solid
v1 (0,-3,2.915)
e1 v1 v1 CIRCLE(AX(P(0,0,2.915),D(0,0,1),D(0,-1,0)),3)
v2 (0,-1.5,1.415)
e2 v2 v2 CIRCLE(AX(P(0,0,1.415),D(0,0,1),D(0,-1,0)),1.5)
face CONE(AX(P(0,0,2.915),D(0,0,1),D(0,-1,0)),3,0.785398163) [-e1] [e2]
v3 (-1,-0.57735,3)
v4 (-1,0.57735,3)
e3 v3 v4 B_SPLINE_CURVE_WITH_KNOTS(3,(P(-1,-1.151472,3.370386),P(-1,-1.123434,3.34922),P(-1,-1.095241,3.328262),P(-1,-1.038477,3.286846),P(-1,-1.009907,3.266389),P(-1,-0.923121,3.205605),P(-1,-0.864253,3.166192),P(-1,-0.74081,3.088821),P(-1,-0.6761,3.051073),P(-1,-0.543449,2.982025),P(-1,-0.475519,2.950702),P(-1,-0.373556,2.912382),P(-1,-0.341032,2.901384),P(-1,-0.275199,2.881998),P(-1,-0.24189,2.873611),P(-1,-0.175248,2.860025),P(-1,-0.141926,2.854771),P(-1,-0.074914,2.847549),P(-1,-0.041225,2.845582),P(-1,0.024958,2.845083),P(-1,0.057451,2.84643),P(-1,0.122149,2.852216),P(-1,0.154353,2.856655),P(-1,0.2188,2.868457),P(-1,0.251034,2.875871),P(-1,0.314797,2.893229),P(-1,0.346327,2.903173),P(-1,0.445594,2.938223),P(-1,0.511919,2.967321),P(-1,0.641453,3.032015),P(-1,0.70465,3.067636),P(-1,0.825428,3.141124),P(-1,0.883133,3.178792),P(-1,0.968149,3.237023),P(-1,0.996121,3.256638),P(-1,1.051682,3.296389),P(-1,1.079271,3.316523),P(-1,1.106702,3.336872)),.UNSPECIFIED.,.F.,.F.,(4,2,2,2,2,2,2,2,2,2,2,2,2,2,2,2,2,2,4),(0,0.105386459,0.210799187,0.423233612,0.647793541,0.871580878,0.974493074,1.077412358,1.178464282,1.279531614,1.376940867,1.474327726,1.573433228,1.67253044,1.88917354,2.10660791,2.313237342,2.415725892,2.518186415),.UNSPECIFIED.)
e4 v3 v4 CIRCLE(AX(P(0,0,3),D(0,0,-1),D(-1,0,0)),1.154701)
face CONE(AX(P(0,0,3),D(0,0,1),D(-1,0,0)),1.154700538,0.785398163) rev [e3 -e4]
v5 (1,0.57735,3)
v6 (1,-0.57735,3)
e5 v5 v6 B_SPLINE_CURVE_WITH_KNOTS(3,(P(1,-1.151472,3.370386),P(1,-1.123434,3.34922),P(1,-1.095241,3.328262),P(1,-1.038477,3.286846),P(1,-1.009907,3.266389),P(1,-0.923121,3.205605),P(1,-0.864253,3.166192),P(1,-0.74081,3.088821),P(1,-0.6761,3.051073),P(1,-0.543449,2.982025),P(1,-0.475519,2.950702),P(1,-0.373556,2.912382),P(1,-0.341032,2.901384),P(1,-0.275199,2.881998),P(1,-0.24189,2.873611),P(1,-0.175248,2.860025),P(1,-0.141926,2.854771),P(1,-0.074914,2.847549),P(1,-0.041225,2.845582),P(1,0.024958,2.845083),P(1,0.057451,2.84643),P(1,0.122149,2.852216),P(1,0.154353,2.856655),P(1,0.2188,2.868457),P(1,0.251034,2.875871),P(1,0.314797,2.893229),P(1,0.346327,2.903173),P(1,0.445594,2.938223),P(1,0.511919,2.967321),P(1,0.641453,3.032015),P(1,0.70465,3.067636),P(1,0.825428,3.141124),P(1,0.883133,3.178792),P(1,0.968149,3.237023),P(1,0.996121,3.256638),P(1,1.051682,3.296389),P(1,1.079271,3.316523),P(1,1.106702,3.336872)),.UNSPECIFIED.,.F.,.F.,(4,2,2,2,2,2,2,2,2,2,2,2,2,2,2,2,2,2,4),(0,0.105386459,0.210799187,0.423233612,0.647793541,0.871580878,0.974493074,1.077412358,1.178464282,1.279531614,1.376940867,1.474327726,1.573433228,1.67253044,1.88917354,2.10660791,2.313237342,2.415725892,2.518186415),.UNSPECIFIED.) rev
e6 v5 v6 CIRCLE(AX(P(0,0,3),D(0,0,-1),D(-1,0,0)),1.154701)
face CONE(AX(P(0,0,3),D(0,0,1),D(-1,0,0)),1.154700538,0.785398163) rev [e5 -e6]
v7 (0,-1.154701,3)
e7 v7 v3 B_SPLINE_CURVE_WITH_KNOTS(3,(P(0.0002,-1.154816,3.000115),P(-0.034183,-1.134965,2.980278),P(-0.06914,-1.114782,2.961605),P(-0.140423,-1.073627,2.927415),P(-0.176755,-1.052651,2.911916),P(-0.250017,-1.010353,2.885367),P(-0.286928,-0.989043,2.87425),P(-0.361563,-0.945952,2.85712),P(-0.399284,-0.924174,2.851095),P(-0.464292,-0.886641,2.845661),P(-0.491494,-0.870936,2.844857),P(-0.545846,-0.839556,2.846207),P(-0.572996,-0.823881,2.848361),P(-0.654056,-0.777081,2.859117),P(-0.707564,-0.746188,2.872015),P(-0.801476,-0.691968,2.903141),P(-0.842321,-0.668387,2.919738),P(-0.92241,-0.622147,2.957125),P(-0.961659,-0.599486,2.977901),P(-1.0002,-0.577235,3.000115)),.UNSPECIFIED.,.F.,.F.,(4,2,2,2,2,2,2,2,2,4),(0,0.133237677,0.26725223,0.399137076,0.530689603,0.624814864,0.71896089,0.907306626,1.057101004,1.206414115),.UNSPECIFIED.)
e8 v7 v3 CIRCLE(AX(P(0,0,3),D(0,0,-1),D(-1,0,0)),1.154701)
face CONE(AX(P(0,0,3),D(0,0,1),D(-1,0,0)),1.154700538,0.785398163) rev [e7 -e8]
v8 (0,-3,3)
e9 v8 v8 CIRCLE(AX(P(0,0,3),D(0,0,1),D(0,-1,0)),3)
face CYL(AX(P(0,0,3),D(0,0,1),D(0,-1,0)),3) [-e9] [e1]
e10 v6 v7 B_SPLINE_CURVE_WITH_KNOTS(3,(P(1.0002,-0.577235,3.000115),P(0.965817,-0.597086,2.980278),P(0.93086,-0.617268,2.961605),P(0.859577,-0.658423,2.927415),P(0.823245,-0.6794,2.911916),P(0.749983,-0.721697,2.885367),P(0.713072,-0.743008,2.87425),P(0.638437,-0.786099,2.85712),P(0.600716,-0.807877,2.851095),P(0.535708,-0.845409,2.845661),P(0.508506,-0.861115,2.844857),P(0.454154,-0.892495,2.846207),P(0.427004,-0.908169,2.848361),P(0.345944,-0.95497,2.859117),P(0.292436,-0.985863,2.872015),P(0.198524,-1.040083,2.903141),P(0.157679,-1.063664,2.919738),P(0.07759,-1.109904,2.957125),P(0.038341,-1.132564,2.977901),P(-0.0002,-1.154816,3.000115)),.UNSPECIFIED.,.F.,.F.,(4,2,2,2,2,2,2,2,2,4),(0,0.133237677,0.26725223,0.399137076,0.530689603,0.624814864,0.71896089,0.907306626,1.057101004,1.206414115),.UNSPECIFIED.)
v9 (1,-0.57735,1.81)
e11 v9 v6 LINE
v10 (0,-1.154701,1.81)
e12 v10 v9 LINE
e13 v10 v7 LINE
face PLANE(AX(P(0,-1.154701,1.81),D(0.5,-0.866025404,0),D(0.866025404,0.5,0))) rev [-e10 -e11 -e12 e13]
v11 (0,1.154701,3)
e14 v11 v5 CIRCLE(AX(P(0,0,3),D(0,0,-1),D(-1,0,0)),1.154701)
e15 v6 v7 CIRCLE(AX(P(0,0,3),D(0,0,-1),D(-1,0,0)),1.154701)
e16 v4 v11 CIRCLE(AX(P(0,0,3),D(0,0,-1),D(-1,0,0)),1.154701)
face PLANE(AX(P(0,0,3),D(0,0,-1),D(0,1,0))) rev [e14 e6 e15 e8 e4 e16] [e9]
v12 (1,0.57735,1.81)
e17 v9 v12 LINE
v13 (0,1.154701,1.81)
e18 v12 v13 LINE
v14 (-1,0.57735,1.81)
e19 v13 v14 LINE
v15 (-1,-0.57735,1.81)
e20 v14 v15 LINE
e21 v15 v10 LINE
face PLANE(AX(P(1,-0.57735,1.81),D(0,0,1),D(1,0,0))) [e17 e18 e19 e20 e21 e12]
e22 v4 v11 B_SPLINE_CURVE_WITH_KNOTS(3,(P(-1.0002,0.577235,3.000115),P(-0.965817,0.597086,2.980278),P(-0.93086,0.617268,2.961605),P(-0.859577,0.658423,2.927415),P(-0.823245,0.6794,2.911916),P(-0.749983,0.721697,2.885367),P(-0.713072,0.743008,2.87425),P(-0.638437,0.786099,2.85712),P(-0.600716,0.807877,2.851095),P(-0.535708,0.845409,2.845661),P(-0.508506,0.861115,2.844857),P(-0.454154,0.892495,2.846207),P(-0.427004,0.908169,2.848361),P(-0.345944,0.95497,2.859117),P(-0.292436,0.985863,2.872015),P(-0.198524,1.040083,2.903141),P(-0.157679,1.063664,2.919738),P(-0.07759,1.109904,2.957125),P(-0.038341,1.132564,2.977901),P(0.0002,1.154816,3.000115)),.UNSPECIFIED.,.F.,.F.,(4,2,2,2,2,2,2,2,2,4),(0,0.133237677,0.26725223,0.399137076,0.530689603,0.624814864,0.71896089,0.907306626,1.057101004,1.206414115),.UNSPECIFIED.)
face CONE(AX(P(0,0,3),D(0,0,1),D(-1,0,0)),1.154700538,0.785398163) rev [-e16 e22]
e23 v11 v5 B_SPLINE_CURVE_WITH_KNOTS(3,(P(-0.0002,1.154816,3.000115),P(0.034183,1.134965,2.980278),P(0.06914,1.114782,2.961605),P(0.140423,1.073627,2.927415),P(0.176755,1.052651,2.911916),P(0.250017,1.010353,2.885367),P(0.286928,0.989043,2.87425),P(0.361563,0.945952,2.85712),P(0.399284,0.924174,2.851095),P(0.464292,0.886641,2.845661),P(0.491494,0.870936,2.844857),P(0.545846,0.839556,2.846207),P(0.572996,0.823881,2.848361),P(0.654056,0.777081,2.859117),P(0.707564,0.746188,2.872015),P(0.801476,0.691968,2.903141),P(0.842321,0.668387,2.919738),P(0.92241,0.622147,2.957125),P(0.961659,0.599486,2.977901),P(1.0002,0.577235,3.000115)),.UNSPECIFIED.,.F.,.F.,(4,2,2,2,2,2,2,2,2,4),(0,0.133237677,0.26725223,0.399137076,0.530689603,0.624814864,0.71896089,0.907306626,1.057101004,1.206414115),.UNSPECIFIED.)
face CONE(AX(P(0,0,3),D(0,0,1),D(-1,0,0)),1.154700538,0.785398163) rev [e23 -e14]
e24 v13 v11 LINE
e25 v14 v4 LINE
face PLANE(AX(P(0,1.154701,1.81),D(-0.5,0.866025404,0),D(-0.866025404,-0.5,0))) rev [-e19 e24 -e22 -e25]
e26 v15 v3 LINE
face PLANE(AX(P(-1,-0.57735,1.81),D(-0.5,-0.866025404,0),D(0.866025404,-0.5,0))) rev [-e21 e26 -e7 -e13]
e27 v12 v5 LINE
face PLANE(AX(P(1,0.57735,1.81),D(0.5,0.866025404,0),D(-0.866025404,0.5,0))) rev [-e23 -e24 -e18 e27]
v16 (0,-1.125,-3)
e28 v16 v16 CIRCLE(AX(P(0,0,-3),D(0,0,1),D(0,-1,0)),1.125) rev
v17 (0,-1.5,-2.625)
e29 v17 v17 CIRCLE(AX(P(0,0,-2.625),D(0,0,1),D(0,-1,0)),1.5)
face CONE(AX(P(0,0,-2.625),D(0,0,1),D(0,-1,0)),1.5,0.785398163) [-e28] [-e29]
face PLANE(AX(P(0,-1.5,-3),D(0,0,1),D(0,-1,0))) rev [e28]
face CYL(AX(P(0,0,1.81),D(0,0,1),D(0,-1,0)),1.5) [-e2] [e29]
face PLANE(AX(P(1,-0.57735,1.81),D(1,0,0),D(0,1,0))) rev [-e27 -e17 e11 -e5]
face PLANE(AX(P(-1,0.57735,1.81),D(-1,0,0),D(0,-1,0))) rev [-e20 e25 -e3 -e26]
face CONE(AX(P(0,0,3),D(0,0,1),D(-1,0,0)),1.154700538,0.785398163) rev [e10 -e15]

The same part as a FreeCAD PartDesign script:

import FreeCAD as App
import Part
import Sketcher

V = App.Vector
Q = App.Units.Quantity


def edges_at(feature, points):
    """Names of the edges that pass closest to the given points."""
    edges = feature.Shape.Edges
    near = lambda p: min(range(len(edges)), key=lambda i: edges[i].distToShape(Part.Vertex(*p))[0])
    return sorted({f"Edge{near(p) + 1}" for p in points})


def add_polygon(sketch, points):
    """Adds a closed chain of lines whose ends are joined by coincident constraints."""
    first, n = sketch.GeometryCount, len(points)
    for a, b in zip(points, points[1:] + points[:1]):
        sketch.addGeometry(Part.LineSegment(App.Vector(*a, 0), App.Vector(*b, 0)), False)
    for i in range(n):
        sketch.addConstraint(Sketcher.Constraint("Coincident", first + i, 2, first + (i + 1) % n, 1))

doc = App.newDocument("Part")
body = doc.addObject("PartDesign::Body", "Body")

sketch1 = body.newObject("Sketcher::SketchObject", "Sketch")
sketch1.AttachmentSupport = (doc.getObject("YZ_Plane"), [""])
sketch1.MapMode = "FlatFace"
add_polygon(sketch1, [(1.5, -3), (1.5, 1.8), (0, 1.8), (0, -3)])
sketch1.addConstraint(Sketcher.Constraint("Vertical", 0))
sketch1.addConstraint(Sketcher.Constraint("Horizontal", 1))
sketch1.addConstraint(Sketcher.Constraint("Vertical", 2))
sketch1.addConstraint(Sketcher.Constraint("Horizontal", 3))
sketch1.addConstraint(Sketcher.Constraint("PointOnObject", 1, 2, -2))
sketch1.addConstraint(Sketcher.Constraint("DistanceX", 1, 2, 1, 1, Q("1.5 mm")))
sketch1.addConstraint(Sketcher.Constraint("DistanceY", 2, 2, -1, 1, Q("3 mm")))
sketch1.addConstraint(Sketcher.Constraint("DistanceY", 0, 1, 0, 2, Q("4.81 mm")))
revolution = body.newObject("PartDesign::Revolution", "Revolution")
revolution.Profile = sketch1
revolution.ReferenceAxis = (sketch1, ["V_Axis"])
revolution.Angle = 360
doc.recompute()

chamfer = body.newObject("PartDesign::Chamfer", "Chamfer")
chamfer.Base = (revolution, edges_at(revolution, [(0, 1.5, -3)]))
chamfer.Size = 0.375
body2 = doc.addObject("PartDesign::Body", "Body001")

sketch2 = body2.newObject("Sketcher::SketchObject", "Sketch001")
sketch2.AttachmentSupport = (doc.getObject("YZ_Plane001"), [""])
sketch2.MapMode = "FlatFace"
add_polygon(sketch2, [(3, 2.92), (3, 3), (0, 3), (0, 1.3), (1.39, 1.3)])
sketch2.addConstraint(Sketcher.Constraint("Vertical", 0))
sketch2.addConstraint(Sketcher.Constraint("Horizontal", 1))
sketch2.addConstraint(Sketcher.Constraint("Vertical", 2))
sketch2.addConstraint(Sketcher.Constraint("Horizontal", 3))
sketch2.addConstraint(Sketcher.Constraint("PointOnObject", 1, 2, -2))
sketch2.addConstraint(Sketcher.Constraint("DistanceX", 1, 2, 1, 1, Q("3 mm")))
sketch2.addConstraint(Sketcher.Constraint("Angle", 4, Q("45 deg")))
sketch2.addConstraint(Sketcher.Constraint("DistanceY", 2, 2, 2, 1, Q("1.7 mm")))
sketch2.addConstraint(Sketcher.Constraint("DistanceY", -1, 1, 0, 2, Q("3 mm")))
sketch2.addConstraint(Sketcher.Constraint("DistanceX", 3, 1, 3, 2, Q("1.385 mm")))
revolution2 = body2.newObject("PartDesign::Revolution", "Revolution001")
revolution2.Profile = sketch2
revolution2.ReferenceAxis = (sketch2, ["V_Axis"])
revolution2.Angle = 360

sketch3 = body2.newObject("Sketcher::SketchObject", "Sketch002")
sketch3.AttachmentSupport = (doc.getObject("XY_Plane001"), [""])
sketch3.MapMode = "FlatFace"
sketch3.AttachmentOffset = App.Placement(V(0, 0, 3), App.Rotation())
add_polygon(sketch3, [(1, -0.6), (1, 0.6), (0, 1.2), (-1, 0.6), (-1, -0.6), (0, -1.2)])
sketch3.addConstraint(Sketcher.Constraint("Vertical", 0))
sketch3.addConstraint(Sketcher.Constraint("Vertical", 3))
sketch3.addConstraint(Sketcher.Constraint("Symmetric", 0, 2, 3, 2, -1, 1))
sketch3.addConstraint(Sketcher.Constraint("Symmetric", 1, 2, 4, 2, -1, 1))
sketch3.addConstraint(Sketcher.Constraint("PointOnObject", 1, 2, -2))
sketch3.addConstraint(Sketcher.Constraint("Parallel", 2, 5))
sketch3.addConstraint(Sketcher.Constraint("Horizontal", 0, 2, 2, 2))
sketch3.addConstraint(Sketcher.Constraint("Angle", 1, Q("150 deg")))
sketch3.addConstraint(Sketcher.Constraint("DistanceX", -1, 1, 0, 2, Q("1 mm")))
sketch3.addConstraint(Sketcher.Constraint("DistanceY", 0, 1, 0, 2, Q("1.154701 mm")))
pocket1 = body2.newObject("PartDesign::Pocket", "Pocket")
pocket1.Profile = sketch3
pocket1.Length = 1.19

sketch4 = body2.newObject("Sketcher::SketchObject", "Sketch003")
sketch4.AttachmentSupport = (doc.getObject("YZ_Plane001"), [""])
sketch4.MapMode = "FlatFace"
add_polygon(sketch4, [(0, 3), (-1.2, 3), (0, 1.8)])
sketch4.addConstraint(Sketcher.Constraint("Horizontal", 0))
sketch4.addConstraint(Sketcher.Constraint("Vertical", 2))
sketch4.addConstraint(Sketcher.Constraint("PointOnObject", 1, 2, -2))
sketch4.addConstraint(Sketcher.Constraint("Equal", 0, 2))
sketch4.addConstraint(Sketcher.Constraint("DistanceY", -1, 1, 0, 2, Q("3 mm")))
sketch4.addConstraint(Sketcher.Constraint("DistanceX", 0, 2, 0, 1, Q("1.154701 mm")))
groove = body2.newObject("PartDesign::Groove", "Groove")
groove.Profile = sketch4
groove.ReferenceAxis = (sketch4, ["V_Axis"])
groove.Angle = 360
doc.recompute()

boolean = body2.newObject("PartDesign::Boolean", "Boolean")
boolean.Type = "Fuse"
boolean.addObjects([body])

doc.recompute()
